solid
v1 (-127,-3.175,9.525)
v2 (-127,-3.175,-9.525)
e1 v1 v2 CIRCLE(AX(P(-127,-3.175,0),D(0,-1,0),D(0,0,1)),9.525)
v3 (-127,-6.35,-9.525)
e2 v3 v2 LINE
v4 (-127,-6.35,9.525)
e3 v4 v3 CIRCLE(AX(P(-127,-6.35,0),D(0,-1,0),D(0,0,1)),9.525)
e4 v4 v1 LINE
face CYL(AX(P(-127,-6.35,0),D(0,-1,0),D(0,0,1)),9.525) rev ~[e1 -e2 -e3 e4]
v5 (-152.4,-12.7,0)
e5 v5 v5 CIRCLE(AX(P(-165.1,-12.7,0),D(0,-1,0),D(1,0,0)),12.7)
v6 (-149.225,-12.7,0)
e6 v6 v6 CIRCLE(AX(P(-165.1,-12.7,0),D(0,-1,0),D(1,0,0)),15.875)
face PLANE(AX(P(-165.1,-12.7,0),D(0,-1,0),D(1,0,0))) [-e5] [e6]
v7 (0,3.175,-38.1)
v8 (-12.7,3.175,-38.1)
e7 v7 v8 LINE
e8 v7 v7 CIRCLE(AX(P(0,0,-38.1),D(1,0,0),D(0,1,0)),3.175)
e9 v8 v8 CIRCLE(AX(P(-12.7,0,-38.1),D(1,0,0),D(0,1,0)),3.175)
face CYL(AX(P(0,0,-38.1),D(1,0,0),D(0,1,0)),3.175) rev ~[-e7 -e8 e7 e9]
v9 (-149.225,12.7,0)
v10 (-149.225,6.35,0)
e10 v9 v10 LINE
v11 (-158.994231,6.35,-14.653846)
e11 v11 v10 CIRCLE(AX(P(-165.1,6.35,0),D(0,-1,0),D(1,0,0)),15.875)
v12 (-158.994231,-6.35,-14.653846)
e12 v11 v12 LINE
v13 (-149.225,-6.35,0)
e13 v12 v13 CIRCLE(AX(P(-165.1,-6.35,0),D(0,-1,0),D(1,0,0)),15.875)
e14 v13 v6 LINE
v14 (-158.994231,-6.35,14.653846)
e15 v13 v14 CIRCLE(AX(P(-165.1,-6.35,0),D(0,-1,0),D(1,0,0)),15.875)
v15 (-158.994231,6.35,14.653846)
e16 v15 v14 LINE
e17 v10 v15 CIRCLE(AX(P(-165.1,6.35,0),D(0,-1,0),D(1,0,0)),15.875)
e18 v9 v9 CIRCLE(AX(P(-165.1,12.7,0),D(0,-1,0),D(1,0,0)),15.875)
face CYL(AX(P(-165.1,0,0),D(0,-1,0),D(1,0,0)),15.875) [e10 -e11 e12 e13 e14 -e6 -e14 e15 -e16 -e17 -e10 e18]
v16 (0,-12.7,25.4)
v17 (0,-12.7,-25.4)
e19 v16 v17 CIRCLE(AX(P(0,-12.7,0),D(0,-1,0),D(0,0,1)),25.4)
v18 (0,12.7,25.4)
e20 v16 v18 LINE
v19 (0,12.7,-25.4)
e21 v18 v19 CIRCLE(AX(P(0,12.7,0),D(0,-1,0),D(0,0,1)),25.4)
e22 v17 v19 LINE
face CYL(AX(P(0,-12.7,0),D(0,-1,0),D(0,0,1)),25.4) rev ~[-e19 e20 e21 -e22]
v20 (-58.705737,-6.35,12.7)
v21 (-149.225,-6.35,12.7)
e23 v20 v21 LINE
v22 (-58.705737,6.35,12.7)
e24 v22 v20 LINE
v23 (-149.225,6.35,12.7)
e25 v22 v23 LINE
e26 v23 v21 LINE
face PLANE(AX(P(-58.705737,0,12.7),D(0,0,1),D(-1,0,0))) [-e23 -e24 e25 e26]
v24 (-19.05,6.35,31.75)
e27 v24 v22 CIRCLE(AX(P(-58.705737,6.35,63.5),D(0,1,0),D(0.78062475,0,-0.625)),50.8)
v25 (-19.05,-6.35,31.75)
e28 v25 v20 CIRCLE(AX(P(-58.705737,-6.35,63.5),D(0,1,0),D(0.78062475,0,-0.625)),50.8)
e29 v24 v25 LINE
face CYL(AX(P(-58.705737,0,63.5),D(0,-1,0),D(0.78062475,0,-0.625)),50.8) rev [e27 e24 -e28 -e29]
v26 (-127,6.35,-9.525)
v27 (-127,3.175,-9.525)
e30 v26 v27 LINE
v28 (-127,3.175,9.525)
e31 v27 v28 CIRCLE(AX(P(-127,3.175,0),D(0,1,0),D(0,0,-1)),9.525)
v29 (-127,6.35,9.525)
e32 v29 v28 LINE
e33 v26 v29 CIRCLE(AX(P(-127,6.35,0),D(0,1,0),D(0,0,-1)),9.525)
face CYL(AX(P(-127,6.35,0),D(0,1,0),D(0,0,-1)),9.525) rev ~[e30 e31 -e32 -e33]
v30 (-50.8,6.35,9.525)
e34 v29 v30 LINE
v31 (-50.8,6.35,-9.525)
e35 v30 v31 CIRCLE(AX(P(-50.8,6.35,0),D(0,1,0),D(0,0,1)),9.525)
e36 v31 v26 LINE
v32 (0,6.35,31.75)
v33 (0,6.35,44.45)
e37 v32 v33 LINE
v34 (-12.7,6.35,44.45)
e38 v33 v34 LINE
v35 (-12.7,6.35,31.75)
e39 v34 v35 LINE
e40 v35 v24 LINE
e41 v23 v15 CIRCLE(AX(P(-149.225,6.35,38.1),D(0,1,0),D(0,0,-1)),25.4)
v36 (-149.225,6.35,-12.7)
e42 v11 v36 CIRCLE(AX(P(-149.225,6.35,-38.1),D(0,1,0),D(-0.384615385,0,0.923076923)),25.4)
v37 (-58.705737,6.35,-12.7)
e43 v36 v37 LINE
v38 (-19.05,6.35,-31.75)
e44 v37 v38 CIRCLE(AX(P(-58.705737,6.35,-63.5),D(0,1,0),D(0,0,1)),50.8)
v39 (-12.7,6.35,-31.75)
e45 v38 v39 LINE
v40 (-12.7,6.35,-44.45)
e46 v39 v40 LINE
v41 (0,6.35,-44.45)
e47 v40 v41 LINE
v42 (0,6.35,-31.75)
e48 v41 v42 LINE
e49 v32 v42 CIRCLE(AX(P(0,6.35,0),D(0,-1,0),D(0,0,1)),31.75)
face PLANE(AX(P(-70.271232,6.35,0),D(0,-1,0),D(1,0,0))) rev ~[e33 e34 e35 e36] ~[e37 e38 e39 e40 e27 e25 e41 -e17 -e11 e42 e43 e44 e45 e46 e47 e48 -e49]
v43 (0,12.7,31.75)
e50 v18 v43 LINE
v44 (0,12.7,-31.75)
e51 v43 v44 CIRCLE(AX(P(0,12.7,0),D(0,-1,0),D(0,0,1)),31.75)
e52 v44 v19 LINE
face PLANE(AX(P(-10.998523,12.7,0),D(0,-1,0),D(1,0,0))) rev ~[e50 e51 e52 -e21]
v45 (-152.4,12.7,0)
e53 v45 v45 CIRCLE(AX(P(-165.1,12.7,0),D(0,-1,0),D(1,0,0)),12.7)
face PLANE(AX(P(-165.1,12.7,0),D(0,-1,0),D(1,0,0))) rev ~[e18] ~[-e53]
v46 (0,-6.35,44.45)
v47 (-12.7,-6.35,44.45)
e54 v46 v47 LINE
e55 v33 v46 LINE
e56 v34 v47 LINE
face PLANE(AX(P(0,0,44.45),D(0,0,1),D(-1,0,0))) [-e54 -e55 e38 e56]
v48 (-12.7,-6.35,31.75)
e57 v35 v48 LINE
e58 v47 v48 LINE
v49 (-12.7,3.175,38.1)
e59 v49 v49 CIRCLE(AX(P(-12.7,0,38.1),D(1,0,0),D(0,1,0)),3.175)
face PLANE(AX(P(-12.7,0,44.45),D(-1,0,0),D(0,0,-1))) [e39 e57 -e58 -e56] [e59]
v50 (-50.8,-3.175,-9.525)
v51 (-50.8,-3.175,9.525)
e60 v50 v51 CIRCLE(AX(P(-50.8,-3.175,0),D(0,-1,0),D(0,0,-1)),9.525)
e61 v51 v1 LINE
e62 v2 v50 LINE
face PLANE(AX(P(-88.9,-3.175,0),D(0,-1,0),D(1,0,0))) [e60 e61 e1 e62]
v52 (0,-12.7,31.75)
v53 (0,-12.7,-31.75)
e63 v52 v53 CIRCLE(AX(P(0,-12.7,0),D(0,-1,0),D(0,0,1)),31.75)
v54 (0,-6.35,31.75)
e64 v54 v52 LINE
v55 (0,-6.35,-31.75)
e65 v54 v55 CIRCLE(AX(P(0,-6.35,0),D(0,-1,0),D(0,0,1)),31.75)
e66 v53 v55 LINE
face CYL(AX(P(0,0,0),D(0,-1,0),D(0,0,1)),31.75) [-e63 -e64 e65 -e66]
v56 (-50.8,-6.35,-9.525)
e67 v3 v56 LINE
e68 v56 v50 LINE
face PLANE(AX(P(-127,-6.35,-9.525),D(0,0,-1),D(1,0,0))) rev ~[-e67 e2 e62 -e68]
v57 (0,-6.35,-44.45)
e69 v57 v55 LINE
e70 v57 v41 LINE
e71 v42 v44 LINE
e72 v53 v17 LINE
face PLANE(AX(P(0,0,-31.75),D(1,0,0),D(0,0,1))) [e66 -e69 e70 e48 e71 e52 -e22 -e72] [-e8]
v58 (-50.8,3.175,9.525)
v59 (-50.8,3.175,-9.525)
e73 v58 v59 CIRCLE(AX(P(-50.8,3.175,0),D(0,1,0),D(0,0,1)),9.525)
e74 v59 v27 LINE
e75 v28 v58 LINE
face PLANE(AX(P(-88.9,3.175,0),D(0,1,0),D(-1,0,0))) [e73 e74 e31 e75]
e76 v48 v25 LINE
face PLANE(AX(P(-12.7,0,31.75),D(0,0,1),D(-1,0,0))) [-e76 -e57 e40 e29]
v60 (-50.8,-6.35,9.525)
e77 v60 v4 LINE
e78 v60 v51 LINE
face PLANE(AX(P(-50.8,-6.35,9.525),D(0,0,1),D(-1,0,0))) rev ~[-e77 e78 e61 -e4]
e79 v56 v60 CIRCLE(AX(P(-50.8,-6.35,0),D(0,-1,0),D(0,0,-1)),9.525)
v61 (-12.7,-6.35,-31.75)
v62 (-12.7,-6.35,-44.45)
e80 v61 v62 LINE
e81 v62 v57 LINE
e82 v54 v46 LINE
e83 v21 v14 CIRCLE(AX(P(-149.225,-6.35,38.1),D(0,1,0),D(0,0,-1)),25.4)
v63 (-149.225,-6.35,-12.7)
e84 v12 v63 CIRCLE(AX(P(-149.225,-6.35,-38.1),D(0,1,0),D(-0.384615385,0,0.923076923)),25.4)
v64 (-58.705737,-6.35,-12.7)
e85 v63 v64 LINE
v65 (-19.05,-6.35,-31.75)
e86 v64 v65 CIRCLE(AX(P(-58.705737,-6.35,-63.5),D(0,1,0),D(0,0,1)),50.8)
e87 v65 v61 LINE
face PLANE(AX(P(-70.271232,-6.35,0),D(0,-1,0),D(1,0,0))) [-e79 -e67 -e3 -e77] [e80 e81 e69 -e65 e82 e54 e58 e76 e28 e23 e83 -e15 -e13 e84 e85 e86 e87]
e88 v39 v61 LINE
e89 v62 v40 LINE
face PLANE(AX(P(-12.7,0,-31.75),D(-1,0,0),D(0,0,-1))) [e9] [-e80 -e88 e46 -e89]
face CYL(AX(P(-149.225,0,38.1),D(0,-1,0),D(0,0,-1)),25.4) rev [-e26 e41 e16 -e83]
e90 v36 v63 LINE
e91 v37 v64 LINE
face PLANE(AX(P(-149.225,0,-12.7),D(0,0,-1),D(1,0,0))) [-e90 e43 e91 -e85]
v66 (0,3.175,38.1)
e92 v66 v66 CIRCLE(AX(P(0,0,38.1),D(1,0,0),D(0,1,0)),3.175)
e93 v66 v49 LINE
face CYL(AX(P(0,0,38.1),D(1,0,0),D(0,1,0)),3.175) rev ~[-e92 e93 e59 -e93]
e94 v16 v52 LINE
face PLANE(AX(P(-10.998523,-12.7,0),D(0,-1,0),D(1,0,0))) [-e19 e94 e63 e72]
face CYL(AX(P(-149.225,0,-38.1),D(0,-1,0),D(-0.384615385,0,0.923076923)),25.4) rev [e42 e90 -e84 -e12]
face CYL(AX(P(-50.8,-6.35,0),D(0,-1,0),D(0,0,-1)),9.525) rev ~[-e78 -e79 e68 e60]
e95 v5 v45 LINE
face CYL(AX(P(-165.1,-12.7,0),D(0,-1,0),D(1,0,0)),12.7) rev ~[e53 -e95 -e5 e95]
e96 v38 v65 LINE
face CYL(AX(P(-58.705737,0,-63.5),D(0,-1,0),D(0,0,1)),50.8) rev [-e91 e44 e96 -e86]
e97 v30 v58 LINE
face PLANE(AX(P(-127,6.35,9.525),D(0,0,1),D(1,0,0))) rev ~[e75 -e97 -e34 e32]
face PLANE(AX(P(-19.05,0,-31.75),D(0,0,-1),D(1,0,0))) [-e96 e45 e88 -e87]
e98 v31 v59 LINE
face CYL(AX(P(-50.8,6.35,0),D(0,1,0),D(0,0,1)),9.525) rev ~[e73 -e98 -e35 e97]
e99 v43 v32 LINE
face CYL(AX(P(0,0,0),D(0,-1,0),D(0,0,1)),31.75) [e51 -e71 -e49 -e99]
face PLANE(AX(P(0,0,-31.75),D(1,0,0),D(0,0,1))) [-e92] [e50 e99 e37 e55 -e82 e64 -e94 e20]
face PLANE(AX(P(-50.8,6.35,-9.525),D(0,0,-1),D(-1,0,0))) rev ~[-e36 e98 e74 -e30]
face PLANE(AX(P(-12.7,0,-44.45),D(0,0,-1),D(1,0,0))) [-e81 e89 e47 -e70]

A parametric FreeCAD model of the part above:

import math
import FreeCAD as App
import Part
import Sketcher
from FreeCAD import Vector
Q = App.Units.Quantity

doc = App.newDocument("Part")
body = doc.addObject("PartDesign::Body", "Body")

sketch1 = body.newObject("Sketcher::SketchObject", "Sketch")
sketch1.AttachmentSupport = (doc.getObject("XZ_Plane"), [""])
sketch1.MapMode = "FlatFace"
sketch1.addGeometry([
    Part.ArcOfCircle(Part.Circle(Vector(0, 0, 0), Vector(0, 0, 1), 25), math.radians(90), math.radians(270)),
    Part.LineSegment(Vector(0, 25, 0), Vector(0, 44, 0)),
    Part.LineSegment(Vector(0, 44, 0), Vector(-13, 44, 0)),
    Part.LineSegment(Vector(-13, 44, 0), Vector(-13, 32, 0)),
    Part.LineSegment(Vector(-13, 32, 0), Vector(-19, 32, 0)),
    Part.ArcOfCircle(Part.Circle(Vector(-59, 64, 0), Vector(0, 0, 1), 51), math.radians(-90), math.radians(-39)),
    Part.LineSegment(Vector(-59, 13, 0), Vector(-149, 13, 0)),
    Part.ArcOfCircle(Part.Circle(Vector(-149, 38, 0), Vector(0, 0, 1), 25), math.radians(-113), math.radians(-90)),
    Part.ArcOfCircle(Part.Circle(Vector(-165, 0, 0), Vector(0, 0, 1), 16), math.radians(67), math.radians(293)),
    Part.ArcOfCircle(Part.Circle(Vector(-149, -38, 0), Vector(0, 0, 1), 25), math.radians(90), math.radians(113)),
    Part.LineSegment(Vector(-149, -13, 0), Vector(-59, -13, 0)),
    Part.ArcOfCircle(Part.Circle(Vector(-59, -64, 0), Vector(0, 0, 1), 51), math.radians(39), math.radians(90)),
    Part.LineSegment(Vector(-19, -32, 0), Vector(-13, -32, 0)),
    Part.LineSegment(Vector(-13, -32, 0), Vector(-13, -44, 0)),
    Part.LineSegment(Vector(-13, -44, 0), Vector(0, -44, 0)),
    Part.LineSegment(Vector(0, -44, 0), Vector(0, -25, 0)),
], False)
sketch1.addConstraint([
    Sketcher.Constraint("Coincident", 0, 1, 1, 1),
    Sketcher.Constraint("Coincident", 1, 2, 2, 1),
    Sketcher.Constraint("Coincident", 2, 2, 3, 1),
    Sketcher.Constraint("Coincident", 3, 2, 4, 1),
    Sketcher.Constraint("Coincident", 4, 2, 5, 2),
    Sketcher.Constraint("Tangent", 5, 1, 6, 1),
    Sketcher.Constraint("Tangent", 6, 2, 7, 2),
    Sketcher.Constraint("Tangent", 7, 1, 8, 1),
    Sketcher.Constraint("Tangent", 8, 2, 9, 2),
    Sketcher.Constraint("Tangent", 9, 1, 10, 1),
    Sketcher.Constraint("Tangent", 10, 2, 11, 2),
    Sketcher.Constraint("Coincident", 11, 1, 12, 1),
    Sketcher.Constraint("Coincident", 12, 2, 13, 1),
    Sketcher.Constraint("Coincident", 13, 2, 14, 1),
    Sketcher.Constraint("Coincident", 14, 2, 15, 1),
    Sketcher.Constraint("Coincident", 15, 2, 0, 2),
    Sketcher.Constraint("Vertical", 1),
    Sketcher.Constraint("Horizontal", 2),
    Sketcher.Constraint("Vertical", 3),
    Sketcher.Constraint("Horizontal", 4),
    Sketcher.Constraint("Horizontal", 6),
    Sketcher.Constraint("Horizontal", 10),
    Sketcher.Constraint("Horizontal", 12),
    Sketcher.Constraint("Vertical", 13),
    Sketcher.Constraint("Horizontal", 14),
    Sketcher.Constraint("Vertical", 15),
    Sketcher.Constraint("Coincident", 0, 3, -1, 1),
    Sketcher.Constraint("Equal", 0, 7),
    Sketcher.Constraint("Equal", 7, 9),
    Sketcher.Constraint("Equal", 5, 11),
    Sketcher.Constraint("Symmetric", 1, 2, 14, 2, -1, 1),
    Sketcher.Constraint("Symmetric", 7, 3, 9, 3, -1),
    Sketcher.Constraint("Symmetric", 4, 2, 11, 1, -1),
    Sketcher.Constraint("PointOnObject", 0, 1, -2),
    Sketcher.Constraint("Vertical", 3, 2, 12, 2),
    Sketcher.Constraint("Equal", 14, 3),
    Sketcher.Constraint("Radius", 0, Q("1 in")),
    Sketcher.Constraint("Radius", 5, Q("2 in")),
    Sketcher.Constraint("DistanceX", 2, 2, 2, 1, Q("0.5 in")),
    Sketcher.Constraint("Radius", 8, Q("0.625 in")),
    Sketcher.Constraint("DistanceY", 9, 3, 7, 3, Q("3 in")),
    Sketcher.Constraint("DistanceX", 4, 2, 4, 1, Q("0.25 in")),
    Sketcher.Constraint("DistanceY", 1, 1, 1, 2, Q("0.75 in")),
    Sketcher.Constraint("DistanceX", 8, 3, -1, 1, Q("6.5 in")),
])
pad1 = body.newObject("PartDesign::Pad", "Pad")
pad1.Profile = sketch1
pad1.Length = Q("0.5 in")
pad1.Midplane = True

sketch2 = body.newObject("Sketcher::SketchObject", "Sketch001")
sketch2.AttachmentSupport = (doc.getObject("XZ_Plane"), [""])
sketch2.MapMode = "FlatFace"
sketch2.AttachmentOffset = App.Placement(Vector(0, 0, 0.25 * 25.4), App.Rotation())
sketch2.addGeometry([
    Part.ArcOfCircle(Part.Circle(Vector(-127, 0, 0), Vector(0, 0, 1), 10), math.radians(90), math.radians(270)),
    Part.LineSegment(Vector(-127, -10, 0), Vector(-51, -10, 0)),
    Part.ArcOfCircle(Part.Circle(Vector(-51, 0, 0), Vector(0, 0, 1), 10), math.radians(-90), math.radians(90)),
    Part.LineSegment(Vector(-51, 10, 0), Vector(-127, 10, 0)),
], False)
sketch2.addConstraint([
    Sketcher.Constraint("Tangent", 0, 2, 1, 1),
    Sketcher.Constraint("Tangent", 1, 2, 2, 1),
    Sketcher.Constraint("Tangent", 2, 2, 3, 1),
    Sketcher.Constraint("Tangent", 3, 2, 0, 1),
    Sketcher.Constraint("Horizontal", 1),
    Sketcher.Constraint("Horizontal", 3),
    Sketcher.Constraint("PointOnObject", 0, 3, -1),
    Sketcher.Constraint("DistanceX", 1, 1, 1, 2, Q("3 in")),
    Sketcher.Constraint("DistanceX", 0, 3, -1, 1, Q("5 in")),
    Sketcher.Constraint("Radius", 0, Q("0.375 in")),
])
pocket1 = body.newObject("PartDesign::Pocket", "Pocket")
pocket1.Profile = sketch2
pocket1.Length = Q("0.125 in")

sketch3 = body.newObject("Sketcher::SketchObject", "Sketch002")
sketch3.AttachmentSupport = (doc.getObject("XZ_Plane"), [""])
sketch3.MapMode = "FlatFace"
sketch3.AttachmentOffset = App.Placement(Vector(0, 0, -0.25 * 25.4), App.Rotation())
sketch3.addGeometry([
    Part.ArcOfCircle(Part.Circle(Vector(-51, 0, 0), Vector(0, 0, 1), 10), math.radians(-90), math.radians(90)),
    Part.LineSegment(Vector(-51, -10, 0), Vector(-127, -10, 0)),
    Part.ArcOfCircle(Part.Circle(Vector(-127, 0, 0), Vector(0, 0, 1), 10), math.radians(90), math.radians(270)),
    Part.LineSegment(Vector(-127, 10, 0), Vector(-51, 10, 0)),
], False)
sketch3.addConstraint([
    Sketcher.Constraint("Tangent", 0, 1, 1, 1),
    Sketcher.Constraint("Tangent", 1, 2, 2, 2),
    Sketcher.Constraint("Tangent", 2, 1, 3, 1),
    Sketcher.Constraint("Tangent", 3, 2, 0, 2),
    Sketcher.Constraint("Horizontal", 1),
    Sketcher.Constraint("Horizontal", 3),
    Sketcher.Constraint("PointOnObject", 0, 3, -1),
    Sketcher.Constraint("DistanceX", 1, 2, 1, 1, Q("3 in")),
    Sketcher.Constraint("DistanceX", 0, 3, -1, 1, Q("2 in")),
    Sketcher.Constraint("Radius", 0, Q("0.375 in")),
])
pocket2 = body.newObject("PartDesign::Pocket", "Pocket001")
pocket2.Profile = sketch3
pocket2.Length = Q("0.125 in")
pocket2.Reversed = True

sketch4 = body.newObject("Sketcher::SketchObject", "Sketch003")
sketch4.AttachmentSupport = (doc.getObject("XZ_Plane"), [""])
sketch4.MapMode = "FlatFace"
sketch4.addGeometry(Part.Circle(Vector(-165, 0, 0), Vector(0, 0, 1), 16), False)
sketch4.addConstraint([
    Sketcher.Constraint("PointOnObject", 0, 3, -1),
    Sketcher.Constraint("Diameter", 0, Q("1.25 in")),
    Sketcher.Constraint("DistanceX", 0, 3, -1, 1, Q("6.5 in")),
])
pad2 = body.newObject("PartDesign::Pad", "Pad001")
pad2.Profile = sketch4
pad2.Length = Q("1 in")
pad2.Midplane = True

sketch5 = body.newObject("Sketcher::SketchObject", "Sketch004")
sketch5.AttachmentSupport = (doc.getObject("XZ_Plane"), [""])
sketch5.MapMode = "FlatFace"
sketch5.addGeometry([
    Part.LineSegment(Vector(0, -32, 0), Vector(0, 32, 0)),
    Part.ArcOfCircle(Part.Circle(Vector(0, 0, 0), Vector(0, 0, 1), 32), math.radians(90), math.radians(270)),
], False)
sketch5.addConstraint([
    Sketcher.Constraint("Coincident", 0, 1, 1, 2),
    Sketcher.Constraint("Coincident", 1, 1, 0, 2),
    Sketcher.Constraint("Vertical", 0),
    Sketcher.Constraint("Coincident", 1, 3, -1, 1),
    Sketcher.Constraint("PointOnObject", 0, 1, -2),
    Sketcher.Constraint("Radius", 1, Q("1.25 in")),
])
pad3 = body.newObject("PartDesign::Pad", "Pad002")
pad3.Profile = sketch5
pad3.Length = Q("1 in")
pad3.Midplane = True

sketch6 = body.newObject("Sketcher::SketchObject", "Sketch005")
sketch6.AttachmentSupport = (doc.getObject("XZ_Plane"), [""])
sketch6.MapMode = "FlatFace"
sketch6.AttachmentOffset = App.Placement(Vector(0, 0, 0.5 * 25.4), App.Rotation())
sketch6.addGeometry([
    Part.LineSegment(Vector(0, -25, 0), Vector(0, 25, 0)),
    Part.ArcOfCircle(Part.Circle(Vector(0, 0, 0), Vector(0, 0, 1), 25), math.radians(90), math.radians(270)),
], False)
sketch6.addConstraint([
    Sketcher.Constraint("Coincident", 0, 1, 1, 2),
    Sketcher.Constraint("Coincident", 1, 1, 0, 2),
    Sketcher.Constraint("Vertical", 0),
    Sketcher.Constraint("Coincident", 1, 3, -1, 1),
    Sketcher.Constraint("PointOnObject", 0, 1, -2),
    Sketcher.Constraint("Radius", 1, Q("1 in")),
])
pocket3 = body.newObject("PartDesign::Pocket", "Pocket002")
pocket3.Profile = sketch6
pocket3.Type = "ThroughAll"

sketch7 = body.newObject("Sketcher::SketchObject", "Sketch006")
sketch7.AttachmentSupport = (doc.getObject("XZ_Plane"), [""])
sketch7.MapMode = "FlatFace"
sketch7.AttachmentOffset = App.Placement(Vector(0, 0, 0.5 * 25.4), App.Rotation())
sketch7.addGeometry(Part.Circle(Vector(-165, 0, 0), Vector(0, 0, 1), 13), False)
sketch7.addConstraint([
    Sketcher.Constraint("PointOnObject", 0, 3, -1),
    Sketcher.Constraint("Diameter", 0, Q("1 in")),
    Sketcher.Constraint("DistanceX", 0, 3, -1, 1, Q("6.5 in")),
])
pocket4 = body.newObject("PartDesign::Pocket", "Pocket003")
pocket4.Profile = sketch7
pocket4.Type = "ThroughAll"

sketch8 = body.newObject("Sketcher::SketchObject", "Sketch007")
sketch8.AttachmentSupport = (doc.getObject("YZ_Plane"), [""])
sketch8.MapMode = "FlatFace"
sketch8.addGeometry([
    Part.Circle(Vector(0, 38.1, 0), Vector(0, 0, 1), 3.2),
    Part.Circle(Vector(0, -38.1, 0), Vector(0, 0, 1), 3.2),
], False)
sketch8.addConstraint([
    Sketcher.Constraint("Equal", 0, 1),
    Sketcher.Constraint("Symmetric", 0, 3, 1, 3, -1, 1),
    Sketcher.Constraint("PointOnObject", 0, 3, -2),
    Sketcher.Constraint("Diameter", 0, Q("0.25 in")),
    Sketcher.Constraint("DistanceY", 1, 3, 0, 3, Q("3 in")),
])
pocket5 = body.newObject("PartDesign::Pocket", "Pocket004")
pocket5.Profile = sketch8
pocket5.Type = "ThroughAll"

doc.recompute()
